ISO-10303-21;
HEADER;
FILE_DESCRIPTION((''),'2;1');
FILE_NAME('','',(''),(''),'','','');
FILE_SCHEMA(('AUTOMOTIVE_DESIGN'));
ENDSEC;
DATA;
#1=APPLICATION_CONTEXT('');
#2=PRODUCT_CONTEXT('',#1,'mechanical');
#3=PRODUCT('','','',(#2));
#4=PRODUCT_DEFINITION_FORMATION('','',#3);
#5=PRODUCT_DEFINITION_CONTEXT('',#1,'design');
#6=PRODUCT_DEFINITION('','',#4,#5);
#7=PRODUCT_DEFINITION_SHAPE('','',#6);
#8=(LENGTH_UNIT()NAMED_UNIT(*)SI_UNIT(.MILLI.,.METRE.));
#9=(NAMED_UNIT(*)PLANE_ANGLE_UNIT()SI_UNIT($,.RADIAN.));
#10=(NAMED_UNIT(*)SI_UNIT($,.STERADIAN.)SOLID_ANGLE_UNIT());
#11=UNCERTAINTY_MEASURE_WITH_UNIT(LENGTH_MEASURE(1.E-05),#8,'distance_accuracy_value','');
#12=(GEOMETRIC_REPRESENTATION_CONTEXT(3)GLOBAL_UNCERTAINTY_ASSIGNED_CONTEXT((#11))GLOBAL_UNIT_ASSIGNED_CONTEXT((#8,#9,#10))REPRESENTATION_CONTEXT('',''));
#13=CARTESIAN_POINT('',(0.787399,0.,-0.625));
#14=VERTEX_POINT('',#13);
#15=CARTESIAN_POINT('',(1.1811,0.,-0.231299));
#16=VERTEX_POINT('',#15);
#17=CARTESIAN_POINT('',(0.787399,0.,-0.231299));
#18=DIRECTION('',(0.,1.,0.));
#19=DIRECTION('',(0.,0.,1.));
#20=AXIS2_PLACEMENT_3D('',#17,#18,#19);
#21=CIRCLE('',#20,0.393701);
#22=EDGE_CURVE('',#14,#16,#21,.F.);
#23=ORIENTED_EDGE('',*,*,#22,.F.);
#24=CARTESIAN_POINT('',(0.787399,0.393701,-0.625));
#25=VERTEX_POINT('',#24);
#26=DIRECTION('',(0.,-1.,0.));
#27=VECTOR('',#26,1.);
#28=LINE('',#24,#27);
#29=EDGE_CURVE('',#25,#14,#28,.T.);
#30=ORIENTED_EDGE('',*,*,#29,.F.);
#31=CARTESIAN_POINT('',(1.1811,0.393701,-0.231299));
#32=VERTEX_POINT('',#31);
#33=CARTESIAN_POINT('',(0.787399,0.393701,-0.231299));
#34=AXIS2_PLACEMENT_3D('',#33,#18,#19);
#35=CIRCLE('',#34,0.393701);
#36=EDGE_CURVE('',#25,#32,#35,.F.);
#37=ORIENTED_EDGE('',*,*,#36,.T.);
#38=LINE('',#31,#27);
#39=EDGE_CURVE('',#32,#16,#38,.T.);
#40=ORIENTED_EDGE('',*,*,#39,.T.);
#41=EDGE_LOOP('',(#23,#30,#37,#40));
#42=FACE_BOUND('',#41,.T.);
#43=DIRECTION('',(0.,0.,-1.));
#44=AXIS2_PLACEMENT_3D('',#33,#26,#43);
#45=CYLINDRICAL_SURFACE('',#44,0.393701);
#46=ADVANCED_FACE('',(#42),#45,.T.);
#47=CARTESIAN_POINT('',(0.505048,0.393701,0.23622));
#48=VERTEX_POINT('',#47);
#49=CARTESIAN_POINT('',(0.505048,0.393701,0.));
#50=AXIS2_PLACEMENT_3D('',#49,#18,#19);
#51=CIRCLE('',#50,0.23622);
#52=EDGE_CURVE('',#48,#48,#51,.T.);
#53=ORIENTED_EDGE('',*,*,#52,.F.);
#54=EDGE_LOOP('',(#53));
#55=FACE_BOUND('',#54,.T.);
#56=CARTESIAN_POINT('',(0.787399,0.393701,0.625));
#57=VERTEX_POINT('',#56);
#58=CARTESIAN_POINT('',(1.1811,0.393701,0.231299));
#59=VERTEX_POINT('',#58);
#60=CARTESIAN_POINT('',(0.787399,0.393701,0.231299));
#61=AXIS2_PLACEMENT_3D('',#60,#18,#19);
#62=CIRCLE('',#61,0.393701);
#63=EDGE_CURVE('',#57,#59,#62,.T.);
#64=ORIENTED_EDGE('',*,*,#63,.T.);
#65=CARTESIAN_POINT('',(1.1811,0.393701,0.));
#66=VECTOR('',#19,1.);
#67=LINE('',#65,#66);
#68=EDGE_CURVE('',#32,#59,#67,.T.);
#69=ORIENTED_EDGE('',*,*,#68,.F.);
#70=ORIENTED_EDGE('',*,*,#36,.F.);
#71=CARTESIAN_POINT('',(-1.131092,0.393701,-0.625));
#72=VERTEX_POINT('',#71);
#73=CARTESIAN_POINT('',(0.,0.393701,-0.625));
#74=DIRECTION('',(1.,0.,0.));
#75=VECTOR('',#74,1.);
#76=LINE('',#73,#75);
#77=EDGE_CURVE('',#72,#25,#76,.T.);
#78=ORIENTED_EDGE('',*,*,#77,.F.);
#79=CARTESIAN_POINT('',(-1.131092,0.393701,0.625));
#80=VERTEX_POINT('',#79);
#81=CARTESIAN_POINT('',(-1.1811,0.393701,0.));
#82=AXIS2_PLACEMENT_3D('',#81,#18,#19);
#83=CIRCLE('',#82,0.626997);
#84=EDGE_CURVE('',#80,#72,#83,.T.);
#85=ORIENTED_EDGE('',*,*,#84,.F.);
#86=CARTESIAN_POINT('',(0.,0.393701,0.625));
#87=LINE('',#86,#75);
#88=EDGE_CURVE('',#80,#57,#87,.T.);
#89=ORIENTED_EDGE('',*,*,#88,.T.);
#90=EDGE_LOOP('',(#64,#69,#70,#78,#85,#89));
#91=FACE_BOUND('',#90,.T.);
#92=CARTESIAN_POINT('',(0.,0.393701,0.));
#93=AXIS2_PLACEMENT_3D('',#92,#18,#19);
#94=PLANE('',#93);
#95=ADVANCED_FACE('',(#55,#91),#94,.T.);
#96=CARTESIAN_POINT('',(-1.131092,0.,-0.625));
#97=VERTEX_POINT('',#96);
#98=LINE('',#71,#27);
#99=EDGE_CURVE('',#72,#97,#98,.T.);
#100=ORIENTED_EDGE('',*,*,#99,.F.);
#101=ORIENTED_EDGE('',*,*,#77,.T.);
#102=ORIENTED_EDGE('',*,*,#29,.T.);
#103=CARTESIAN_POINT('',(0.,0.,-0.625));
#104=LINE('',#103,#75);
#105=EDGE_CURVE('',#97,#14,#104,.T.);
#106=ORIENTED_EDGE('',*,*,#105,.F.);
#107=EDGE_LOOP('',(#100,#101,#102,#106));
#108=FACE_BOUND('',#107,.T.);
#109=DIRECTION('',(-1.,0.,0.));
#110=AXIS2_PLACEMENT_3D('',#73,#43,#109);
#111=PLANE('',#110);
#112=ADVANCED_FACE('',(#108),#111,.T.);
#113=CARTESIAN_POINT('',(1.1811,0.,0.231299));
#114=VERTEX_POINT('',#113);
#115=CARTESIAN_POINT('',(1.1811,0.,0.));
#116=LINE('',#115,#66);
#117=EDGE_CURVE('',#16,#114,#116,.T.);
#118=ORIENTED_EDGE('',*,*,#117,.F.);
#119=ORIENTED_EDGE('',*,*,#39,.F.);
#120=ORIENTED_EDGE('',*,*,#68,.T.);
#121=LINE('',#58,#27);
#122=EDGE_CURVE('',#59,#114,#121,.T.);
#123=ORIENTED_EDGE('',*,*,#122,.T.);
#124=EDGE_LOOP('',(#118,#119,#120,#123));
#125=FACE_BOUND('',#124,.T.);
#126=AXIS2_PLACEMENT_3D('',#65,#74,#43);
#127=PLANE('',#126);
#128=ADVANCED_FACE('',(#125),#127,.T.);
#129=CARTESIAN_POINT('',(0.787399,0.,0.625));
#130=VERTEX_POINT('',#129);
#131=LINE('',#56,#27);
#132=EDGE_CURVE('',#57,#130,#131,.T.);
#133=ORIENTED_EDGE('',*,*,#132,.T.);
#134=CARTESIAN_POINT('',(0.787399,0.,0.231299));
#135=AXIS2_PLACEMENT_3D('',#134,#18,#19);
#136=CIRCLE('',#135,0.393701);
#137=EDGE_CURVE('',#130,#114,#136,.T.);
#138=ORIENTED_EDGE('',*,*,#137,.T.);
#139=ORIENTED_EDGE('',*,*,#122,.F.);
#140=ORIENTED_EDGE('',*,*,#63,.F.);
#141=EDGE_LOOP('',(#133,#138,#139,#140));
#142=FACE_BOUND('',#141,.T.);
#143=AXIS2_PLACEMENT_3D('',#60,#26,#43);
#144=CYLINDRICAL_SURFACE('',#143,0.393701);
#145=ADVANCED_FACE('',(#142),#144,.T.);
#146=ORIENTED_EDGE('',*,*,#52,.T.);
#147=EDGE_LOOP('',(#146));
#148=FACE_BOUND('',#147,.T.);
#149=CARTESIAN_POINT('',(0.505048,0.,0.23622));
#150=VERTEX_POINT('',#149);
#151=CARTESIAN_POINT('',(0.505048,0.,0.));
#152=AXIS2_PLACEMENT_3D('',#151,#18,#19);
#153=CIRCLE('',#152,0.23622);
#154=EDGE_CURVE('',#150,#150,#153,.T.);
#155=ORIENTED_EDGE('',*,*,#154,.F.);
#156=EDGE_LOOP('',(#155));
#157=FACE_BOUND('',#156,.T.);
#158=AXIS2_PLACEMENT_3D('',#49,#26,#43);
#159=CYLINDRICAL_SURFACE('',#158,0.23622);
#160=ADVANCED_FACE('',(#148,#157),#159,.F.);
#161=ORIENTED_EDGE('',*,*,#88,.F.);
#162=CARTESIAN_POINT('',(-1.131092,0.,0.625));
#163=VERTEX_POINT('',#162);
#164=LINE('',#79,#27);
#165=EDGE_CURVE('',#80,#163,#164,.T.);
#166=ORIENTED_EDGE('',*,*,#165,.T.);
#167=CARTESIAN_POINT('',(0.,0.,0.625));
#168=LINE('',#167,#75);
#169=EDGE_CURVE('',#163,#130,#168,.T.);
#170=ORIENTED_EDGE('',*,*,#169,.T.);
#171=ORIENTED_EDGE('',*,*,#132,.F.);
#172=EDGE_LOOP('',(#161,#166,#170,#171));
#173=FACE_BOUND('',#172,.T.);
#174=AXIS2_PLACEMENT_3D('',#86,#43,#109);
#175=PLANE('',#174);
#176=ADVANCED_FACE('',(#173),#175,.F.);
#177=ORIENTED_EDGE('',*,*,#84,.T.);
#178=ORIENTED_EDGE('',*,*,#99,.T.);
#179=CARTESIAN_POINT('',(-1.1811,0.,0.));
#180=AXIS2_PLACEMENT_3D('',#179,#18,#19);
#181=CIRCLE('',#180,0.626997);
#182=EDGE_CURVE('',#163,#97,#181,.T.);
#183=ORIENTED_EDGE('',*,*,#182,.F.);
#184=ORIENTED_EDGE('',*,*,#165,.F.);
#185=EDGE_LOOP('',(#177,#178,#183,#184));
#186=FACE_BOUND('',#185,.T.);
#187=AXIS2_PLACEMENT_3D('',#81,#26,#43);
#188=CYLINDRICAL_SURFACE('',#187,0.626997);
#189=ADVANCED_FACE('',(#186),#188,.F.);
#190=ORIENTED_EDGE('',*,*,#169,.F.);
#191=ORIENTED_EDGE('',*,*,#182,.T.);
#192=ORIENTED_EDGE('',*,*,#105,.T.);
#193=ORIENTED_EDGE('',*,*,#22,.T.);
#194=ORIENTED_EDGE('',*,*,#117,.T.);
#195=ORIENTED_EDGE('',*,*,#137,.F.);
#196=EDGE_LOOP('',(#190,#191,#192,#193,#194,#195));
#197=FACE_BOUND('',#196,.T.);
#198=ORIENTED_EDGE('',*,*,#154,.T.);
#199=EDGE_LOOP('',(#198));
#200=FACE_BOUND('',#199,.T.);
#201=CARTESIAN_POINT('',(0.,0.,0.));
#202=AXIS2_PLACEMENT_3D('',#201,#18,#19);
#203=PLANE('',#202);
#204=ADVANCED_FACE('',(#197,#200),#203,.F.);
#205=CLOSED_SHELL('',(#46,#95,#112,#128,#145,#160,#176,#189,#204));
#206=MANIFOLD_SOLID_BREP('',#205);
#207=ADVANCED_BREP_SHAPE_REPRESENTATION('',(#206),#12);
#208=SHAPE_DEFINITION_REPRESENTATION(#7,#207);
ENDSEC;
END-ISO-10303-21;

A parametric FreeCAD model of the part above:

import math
import FreeCAD as App
import Part
import Sketcher
Q = App.Units.Quantity

doc = App.newDocument("Part")
body = doc.addObject("PartDesign::Body", "Body")

# Sketch on XZ plane
sketch1 = doc.addObject("Sketcher::SketchObject", "Sketch")
body.addObject(sketch1)
sketch1.AttachmentSupport = (doc.XZ_Plane, [""])
sketch1.MapMode = "FlatFace"
sketch1.addGeometry([
    Part.LineSegment(App.Vector(0.79, -0.62, 0), App.Vector(-1.13, -0.62, 0)),  # 0
    Part.ArcOfCircle(Part.Circle(App.Vector(-1.18, 0, 0), App.Vector(0, 0, 1), 0.63), math.radians(-85), math.radians(0)),  # 1
    Part.ArcOfCircle(Part.Circle(App.Vector(-1.18, 0, 0), App.Vector(0, 0, 1), 0.63), math.radians(0), math.radians(85)),  # 2
    Part.LineSegment(App.Vector(-1.13, 0.62, 0), App.Vector(0.79, 0.62, 0)),  # 3
    Part.ArcOfCircle(Part.Circle(App.Vector(0.79, 0.23, 0), App.Vector(0, 0, 1), 0.39), math.radians(0), math.radians(90)),  # 4
    Part.LineSegment(App.Vector(1.18, 0.23, 0), App.Vector(1.18, -0.23, 0)),  # 5
    Part.ArcOfCircle(Part.Circle(App.Vector(0.79, -0.23, 0), App.Vector(0, 0, 1), 0.39), math.radians(-90), math.radians(0)),  # 6
    Part.Circle(App.Vector(0.51, 0, 0), App.Vector(0, 0, 1), 0.24),  # 7
], False)
sketch1.addConstraint([
    Sketcher.Constraint("Coincident", 0, 2, 1, 1),
    Sketcher.Constraint("Tangent", 1, 2, 2, 1),
    Sketcher.Constraint("Coincident", 2, 2, 3, 1),
    Sketcher.Constraint("Tangent", 3, 2, 4, 2),
    Sketcher.Constraint("Tangent", 4, 1, 5, 1),
    Sketcher.Constraint("Tangent", 5, 2, 6, 2),
    Sketcher.Constraint("Tangent", 6, 1, 0, 1),
    Sketcher.Constraint("Horizontal", 0),
    Sketcher.Constraint("Horizontal", 3),
    Sketcher.Constraint("Vertical", 5),
    Sketcher.Constraint("Equal", 1, 2),
    Sketcher.Constraint("Equal", 4, 6),
    Sketcher.Constraint("Symmetric", 0, 2, 2, 2, -1),
    Sketcher.Constraint("PointOnObject", 7, 3, -1),
    Sketcher.Constraint("PointOnObject", 1, 2, -1),
    Sketcher.Constraint("Diameter", 7, Q("0.0186 in")),
    Sketcher.Constraint("Radius", 4, Q("0.0155 in")),
    Sketcher.Constraint("DistanceX", -1, 1, 4, 3, Q("0.031 in")),
    Sketcher.Constraint("DistanceX", 1, 3, -1, 1, Q("0.0465 in")),
    Sketcher.Constraint("Radius", 1, 0.626997),
    Sketcher.Constraint("DistanceX", 0, 2, 0, 1, 1.918491),
    Sketcher.Constraint("DistanceX", 7, 3, 4, 3, 0.282351),
])
pad1 = doc.addObject("PartDesign::Pad", "Pad")
body.addObject(pad1)
pad1.Profile = sketch1
pad1.Length = Q("0.0155 in")
pad1.Reversed = True

doc.recompute()
